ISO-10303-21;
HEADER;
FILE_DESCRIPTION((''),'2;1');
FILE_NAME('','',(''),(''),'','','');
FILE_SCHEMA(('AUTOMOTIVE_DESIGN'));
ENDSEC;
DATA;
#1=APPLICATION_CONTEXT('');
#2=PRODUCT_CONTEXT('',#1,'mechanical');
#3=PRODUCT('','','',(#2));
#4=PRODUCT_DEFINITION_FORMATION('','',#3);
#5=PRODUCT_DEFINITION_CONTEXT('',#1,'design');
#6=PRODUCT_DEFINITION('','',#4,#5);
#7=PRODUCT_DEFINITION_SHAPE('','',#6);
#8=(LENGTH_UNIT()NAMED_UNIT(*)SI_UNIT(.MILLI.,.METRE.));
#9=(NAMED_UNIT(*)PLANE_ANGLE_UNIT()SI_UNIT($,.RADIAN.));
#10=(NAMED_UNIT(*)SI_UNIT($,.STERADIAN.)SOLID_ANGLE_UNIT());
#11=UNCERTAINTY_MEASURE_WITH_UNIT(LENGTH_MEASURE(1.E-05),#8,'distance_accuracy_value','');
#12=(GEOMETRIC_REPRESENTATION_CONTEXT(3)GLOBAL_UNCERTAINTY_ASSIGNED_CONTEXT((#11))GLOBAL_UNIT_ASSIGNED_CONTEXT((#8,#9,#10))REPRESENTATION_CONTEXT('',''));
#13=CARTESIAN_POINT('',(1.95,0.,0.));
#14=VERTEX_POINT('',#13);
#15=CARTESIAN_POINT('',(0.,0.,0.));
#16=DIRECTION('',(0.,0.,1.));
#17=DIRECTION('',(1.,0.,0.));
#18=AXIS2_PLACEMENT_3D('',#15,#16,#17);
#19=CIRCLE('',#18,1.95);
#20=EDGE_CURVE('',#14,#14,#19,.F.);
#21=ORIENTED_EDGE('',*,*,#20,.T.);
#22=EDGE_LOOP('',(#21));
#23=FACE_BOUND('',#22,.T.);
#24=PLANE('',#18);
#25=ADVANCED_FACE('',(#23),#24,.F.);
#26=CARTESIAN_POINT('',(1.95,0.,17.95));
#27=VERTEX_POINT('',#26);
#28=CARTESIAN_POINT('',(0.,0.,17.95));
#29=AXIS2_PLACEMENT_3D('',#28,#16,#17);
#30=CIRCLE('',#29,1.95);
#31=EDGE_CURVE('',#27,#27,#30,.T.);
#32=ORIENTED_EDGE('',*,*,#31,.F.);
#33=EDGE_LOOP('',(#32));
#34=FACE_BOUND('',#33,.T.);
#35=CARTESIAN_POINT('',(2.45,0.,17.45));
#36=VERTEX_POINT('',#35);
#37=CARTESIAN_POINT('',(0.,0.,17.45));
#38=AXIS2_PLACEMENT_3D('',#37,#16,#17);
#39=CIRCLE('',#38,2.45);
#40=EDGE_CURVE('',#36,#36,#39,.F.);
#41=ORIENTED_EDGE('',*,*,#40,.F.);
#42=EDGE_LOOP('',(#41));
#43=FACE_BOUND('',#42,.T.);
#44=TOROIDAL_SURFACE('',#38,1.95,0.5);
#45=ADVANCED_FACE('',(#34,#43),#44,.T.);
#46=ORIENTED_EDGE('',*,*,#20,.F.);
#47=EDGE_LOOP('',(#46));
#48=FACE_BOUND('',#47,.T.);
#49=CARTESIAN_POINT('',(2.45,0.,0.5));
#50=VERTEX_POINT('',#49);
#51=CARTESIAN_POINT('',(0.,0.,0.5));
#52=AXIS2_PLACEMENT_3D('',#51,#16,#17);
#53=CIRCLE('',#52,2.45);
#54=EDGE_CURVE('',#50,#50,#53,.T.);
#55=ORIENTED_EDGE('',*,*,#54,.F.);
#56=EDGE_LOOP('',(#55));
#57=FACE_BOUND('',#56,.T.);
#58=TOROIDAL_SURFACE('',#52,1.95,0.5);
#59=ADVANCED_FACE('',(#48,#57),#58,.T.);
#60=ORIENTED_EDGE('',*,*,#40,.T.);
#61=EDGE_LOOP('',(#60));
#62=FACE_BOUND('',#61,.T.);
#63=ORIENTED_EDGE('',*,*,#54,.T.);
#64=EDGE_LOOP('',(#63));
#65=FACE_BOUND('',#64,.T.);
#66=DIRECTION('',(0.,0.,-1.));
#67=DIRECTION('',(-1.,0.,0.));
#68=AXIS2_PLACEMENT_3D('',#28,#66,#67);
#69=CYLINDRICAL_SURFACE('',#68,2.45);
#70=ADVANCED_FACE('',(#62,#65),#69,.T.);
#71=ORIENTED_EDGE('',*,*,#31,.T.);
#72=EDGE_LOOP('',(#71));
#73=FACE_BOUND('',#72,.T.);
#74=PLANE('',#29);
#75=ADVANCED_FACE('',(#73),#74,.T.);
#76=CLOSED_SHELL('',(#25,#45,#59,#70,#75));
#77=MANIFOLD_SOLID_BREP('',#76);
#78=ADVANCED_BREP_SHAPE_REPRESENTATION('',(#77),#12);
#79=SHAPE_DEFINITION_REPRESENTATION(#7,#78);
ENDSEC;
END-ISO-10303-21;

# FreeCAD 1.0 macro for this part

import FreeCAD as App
import Part
import Sketcher
from FreeCAD import Vector
Q = App.Units.Quantity


def edges_at(feature, points):
    """Names of the edges that pass closest to the given points."""
    edges = feature.Shape.Edges
    near = lambda p: min(range(len(edges)), key=lambda i: edges[i].distToShape(Part.Vertex(*p))[0])
    return sorted({f"Edge{near(p) + 1}" for p in points})

doc = App.newDocument("Part")
body = doc.addObject("PartDesign::Body", "Body")

sketch1 = body.newObject("Sketcher::SketchObject", "Sketch")
sketch1.AttachmentSupport = (doc.getObject("XY_Plane"), [""])
sketch1.MapMode = "FlatFace"
sketch1.addGeometry(Part.Circle(Vector(0, 0, 0), Vector(0, 0, 1), 2.45), False)
sketch1.addConstraint(Sketcher.Constraint("Coincident", 0, 3, -1, 1))
sketch1.addConstraint(Sketcher.Constraint("Diameter", 0, Q("4.9 mm")))
pad1 = body.newObject("PartDesign::Pad", "Pad")
pad1.Profile = sketch1
pad1.Length = 17.95
doc.recompute()

fillet = body.newObject("PartDesign::Fillet", "Fillet")
fillet.Base = (pad1, edges_at(pad1, [(-2.45, 0, 0), (-2.45, 0, 17.95)]))
fillet.Radius = 0.5

doc.recompute()
